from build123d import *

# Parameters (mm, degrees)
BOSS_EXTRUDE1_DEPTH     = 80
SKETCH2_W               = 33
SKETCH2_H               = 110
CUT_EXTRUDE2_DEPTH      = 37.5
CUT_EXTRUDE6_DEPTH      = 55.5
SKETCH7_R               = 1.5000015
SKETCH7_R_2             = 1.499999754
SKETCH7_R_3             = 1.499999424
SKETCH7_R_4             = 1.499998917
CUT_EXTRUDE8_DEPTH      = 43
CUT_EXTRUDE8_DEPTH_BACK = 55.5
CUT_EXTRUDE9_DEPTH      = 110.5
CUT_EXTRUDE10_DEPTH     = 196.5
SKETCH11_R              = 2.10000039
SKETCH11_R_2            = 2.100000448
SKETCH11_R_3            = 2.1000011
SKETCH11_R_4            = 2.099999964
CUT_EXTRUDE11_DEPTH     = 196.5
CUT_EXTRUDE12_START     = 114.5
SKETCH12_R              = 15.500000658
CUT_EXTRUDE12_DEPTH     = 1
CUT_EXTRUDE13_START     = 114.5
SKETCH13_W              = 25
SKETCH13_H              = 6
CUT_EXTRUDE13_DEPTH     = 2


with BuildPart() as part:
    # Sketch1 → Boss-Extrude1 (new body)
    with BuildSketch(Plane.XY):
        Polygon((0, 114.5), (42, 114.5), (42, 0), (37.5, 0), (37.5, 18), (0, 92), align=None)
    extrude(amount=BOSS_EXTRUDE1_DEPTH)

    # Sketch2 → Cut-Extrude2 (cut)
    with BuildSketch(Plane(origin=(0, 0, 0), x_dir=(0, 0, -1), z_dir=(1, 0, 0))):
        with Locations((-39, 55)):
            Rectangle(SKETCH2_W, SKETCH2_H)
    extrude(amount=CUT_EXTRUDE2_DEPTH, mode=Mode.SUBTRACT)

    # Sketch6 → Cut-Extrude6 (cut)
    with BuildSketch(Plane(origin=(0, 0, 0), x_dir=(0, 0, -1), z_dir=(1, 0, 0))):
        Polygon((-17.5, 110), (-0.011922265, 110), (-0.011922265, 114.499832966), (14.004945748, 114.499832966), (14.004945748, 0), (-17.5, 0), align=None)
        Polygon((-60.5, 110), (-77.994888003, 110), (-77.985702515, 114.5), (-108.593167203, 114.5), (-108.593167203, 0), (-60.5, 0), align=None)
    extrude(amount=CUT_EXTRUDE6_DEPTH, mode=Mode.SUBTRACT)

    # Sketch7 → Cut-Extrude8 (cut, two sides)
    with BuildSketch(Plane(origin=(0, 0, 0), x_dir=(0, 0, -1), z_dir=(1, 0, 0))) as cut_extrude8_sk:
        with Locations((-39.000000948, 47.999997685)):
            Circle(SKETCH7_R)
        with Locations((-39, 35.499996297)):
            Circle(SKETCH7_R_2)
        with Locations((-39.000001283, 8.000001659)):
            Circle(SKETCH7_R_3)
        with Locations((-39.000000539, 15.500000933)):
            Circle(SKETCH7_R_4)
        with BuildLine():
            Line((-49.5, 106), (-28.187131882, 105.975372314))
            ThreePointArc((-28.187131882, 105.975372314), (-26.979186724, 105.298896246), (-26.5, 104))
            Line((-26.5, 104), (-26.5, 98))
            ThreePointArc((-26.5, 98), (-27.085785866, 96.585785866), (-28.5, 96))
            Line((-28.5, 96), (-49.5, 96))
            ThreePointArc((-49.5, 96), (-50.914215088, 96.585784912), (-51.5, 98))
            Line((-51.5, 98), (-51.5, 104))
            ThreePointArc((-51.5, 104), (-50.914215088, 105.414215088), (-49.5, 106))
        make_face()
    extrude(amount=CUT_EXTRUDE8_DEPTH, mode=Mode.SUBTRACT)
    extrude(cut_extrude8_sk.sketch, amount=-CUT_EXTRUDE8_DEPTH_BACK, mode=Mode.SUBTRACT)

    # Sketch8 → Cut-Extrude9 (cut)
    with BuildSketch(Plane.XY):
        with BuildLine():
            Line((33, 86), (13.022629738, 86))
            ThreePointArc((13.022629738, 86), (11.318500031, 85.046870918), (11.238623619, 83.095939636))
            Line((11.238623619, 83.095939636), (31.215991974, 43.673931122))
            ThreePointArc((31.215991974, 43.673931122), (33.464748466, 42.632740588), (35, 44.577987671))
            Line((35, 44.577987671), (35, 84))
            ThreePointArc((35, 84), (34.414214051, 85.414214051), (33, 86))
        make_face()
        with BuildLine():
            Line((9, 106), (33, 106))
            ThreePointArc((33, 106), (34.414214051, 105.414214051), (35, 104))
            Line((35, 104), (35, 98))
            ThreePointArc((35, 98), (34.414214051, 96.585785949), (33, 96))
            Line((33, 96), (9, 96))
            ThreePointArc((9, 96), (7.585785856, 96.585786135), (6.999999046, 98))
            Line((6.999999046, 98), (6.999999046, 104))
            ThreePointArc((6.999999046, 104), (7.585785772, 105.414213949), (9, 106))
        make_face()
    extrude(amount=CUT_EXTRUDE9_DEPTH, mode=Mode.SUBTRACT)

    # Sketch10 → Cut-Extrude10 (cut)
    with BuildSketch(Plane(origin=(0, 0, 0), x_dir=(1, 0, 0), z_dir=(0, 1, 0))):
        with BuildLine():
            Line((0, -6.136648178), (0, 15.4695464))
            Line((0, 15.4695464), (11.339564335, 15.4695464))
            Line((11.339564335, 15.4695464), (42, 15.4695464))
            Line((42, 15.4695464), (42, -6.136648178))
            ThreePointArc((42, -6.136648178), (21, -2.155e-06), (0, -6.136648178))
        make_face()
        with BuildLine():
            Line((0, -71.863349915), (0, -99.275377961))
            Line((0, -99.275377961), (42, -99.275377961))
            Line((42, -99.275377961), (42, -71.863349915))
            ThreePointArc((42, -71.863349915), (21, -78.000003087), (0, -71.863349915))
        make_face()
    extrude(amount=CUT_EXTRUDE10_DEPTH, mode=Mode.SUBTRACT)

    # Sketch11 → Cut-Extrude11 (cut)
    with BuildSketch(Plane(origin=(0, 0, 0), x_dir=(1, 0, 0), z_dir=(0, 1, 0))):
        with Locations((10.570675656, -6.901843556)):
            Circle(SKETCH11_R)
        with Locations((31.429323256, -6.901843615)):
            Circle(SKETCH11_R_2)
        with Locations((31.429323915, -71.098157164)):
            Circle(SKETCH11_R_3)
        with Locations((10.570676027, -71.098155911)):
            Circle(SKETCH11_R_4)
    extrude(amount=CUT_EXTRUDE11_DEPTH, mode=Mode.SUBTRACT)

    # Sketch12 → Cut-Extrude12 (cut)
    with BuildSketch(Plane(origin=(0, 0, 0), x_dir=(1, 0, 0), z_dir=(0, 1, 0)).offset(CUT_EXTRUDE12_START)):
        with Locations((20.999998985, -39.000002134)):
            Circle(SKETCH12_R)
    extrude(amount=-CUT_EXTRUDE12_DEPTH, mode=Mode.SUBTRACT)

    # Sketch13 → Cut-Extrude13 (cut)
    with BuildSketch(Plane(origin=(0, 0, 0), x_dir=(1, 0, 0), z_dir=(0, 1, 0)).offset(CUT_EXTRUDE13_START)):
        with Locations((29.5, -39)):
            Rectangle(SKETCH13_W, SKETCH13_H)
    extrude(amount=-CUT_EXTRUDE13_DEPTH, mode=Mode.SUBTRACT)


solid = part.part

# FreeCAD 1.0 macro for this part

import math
import FreeCAD as App
import Part
import Sketcher
Q = App.Units.Quantity

doc = App.newDocument("Part")
body = doc.addObject("PartDesign::Body", "Body")

sketch1 = body.newObject("Sketcher::SketchObject", "Sketch")
sketch1.AttachmentSupport = (doc.getObject("XY_Plane"), [""])
sketch1.MapMode = "FlatFace"
sketch1.addGeometry([
    Part.LineSegment(App.Vector(42, 114.5, 0), App.Vector(0, 114.5, 0)),
    Part.LineSegment(App.Vector(0, 114.5, 0), App.Vector(0, 92, 0)),
    Part.LineSegment(App.Vector(0, 92, 0), App.Vector(37.5, 18, 0)),
    Part.LineSegment(App.Vector(37.5, 18, 0), App.Vector(37.5, 0, 0)),
    Part.LineSegment(App.Vector(37.5, 0, 0), App.Vector(42, 0, 0)),
    Part.LineSegment(App.Vector(42, 0, 0), App.Vector(42, 114.5, 0)),
], False)
sketch1.addConstraint([
    Sketcher.Constraint("Coincident", 0, 2, 1, 1),
    Sketcher.Constraint("Coincident", 1, 2, 2, 1),
    Sketcher.Constraint("Coincident", 2, 2, 3, 1),
    Sketcher.Constraint("Coincident", 3, 2, 4, 1),
    Sketcher.Constraint("Coincident", 4, 2, 5, 1),
    Sketcher.Constraint("Coincident", 5, 2, 0, 1),
    Sketcher.Constraint("Horizontal", 0),
    Sketcher.Constraint("Vertical", 1),
    Sketcher.Constraint("Vertical", 3),
    Sketcher.Constraint("Horizontal", 4),
    Sketcher.Constraint("Vertical", 5),
    Sketcher.Constraint("PointOnObject", 0, 2, -2),
    Sketcher.Constraint("PointOnObject", 3, 2, -1),
    Sketcher.Constraint("DistanceX", 0, 2, 0, 1, Q("42 mm")),
    Sketcher.Constraint("DistanceY", 3, 2, 3, 1, Q("18 mm")),
    Sketcher.Constraint("DistanceX", 4, 1, 4, 2, Q("4.5 mm")),
    Sketcher.Constraint("DistanceY", 1, 2, 1, 1, Q("22.5 mm")),
    Sketcher.Constraint("DistanceY", 5, 1, 5, 2, Q("114.5 mm")),
])
pad1 = body.newObject("PartDesign::Pad", "Pad")
pad1.Profile = sketch1
pad1.Length = 80

sketch2 = body.newObject("Sketcher::SketchObject", "Sketch001")
sketch2.AttachmentSupport = (doc.getObject("YZ_Plane"), [""])
sketch2.MapMode = "FlatFace"
sketch2.addGeometry([
    Part.LineSegment(App.Vector(110, 56, 0), App.Vector(0, 56, 0)),
    Part.LineSegment(App.Vector(0, 56, 0), App.Vector(0, 22, 0)),
    Part.LineSegment(App.Vector(0, 22, 0), App.Vector(110, 22, 0)),
    Part.LineSegment(App.Vector(110, 22, 0), App.Vector(110, 56, 0)),
], False)
sketch2.addConstraint([
    Sketcher.Constraint("Coincident", 0, 2, 1, 1),
    Sketcher.Constraint("Coincident", 1, 2, 2, 1),
    Sketcher.Constraint("Coincident", 2, 2, 3, 1),
    Sketcher.Constraint("Coincident", 3, 2, 0, 1),
    Sketcher.Constraint("Horizontal", 0),
    Sketcher.Constraint("Vertical", 1),
    Sketcher.Constraint("Horizontal", 2),
    Sketcher.Constraint("Vertical", 3),
    Sketcher.Constraint("PointOnObject", 0, 2, -2),
    Sketcher.Constraint("DistanceX", 0, 2, 0, 1, Q("110 mm")),
    Sketcher.Constraint("DistanceY", 1, 2, 1, 1, Q("33 mm")),
    Sketcher.Constraint("DistanceY", -1, 1, 0, 2, Q("55.5 mm")),
])
pocket1 = body.newObject("PartDesign::Pocket", "Pocket")
pocket1.Profile = sketch2
pocket1.Length = 37.5
pocket1.Reversed = True

sketch3 = body.newObject("Sketcher::SketchObject", "Sketch002")
sketch3.AttachmentSupport = (doc.getObject("YZ_Plane"), [""])
sketch3.MapMode = "FlatFace"
sketch3.addGeometry([
    Part.LineSegment(App.Vector(110, 0, 0), App.Vector(110, 17.5, 0)),
    Part.LineSegment(App.Vector(110, 17.5, 0), App.Vector(0, 17.5, 0)),
    Part.LineSegment(App.Vector(0, 17.5, 0), App.Vector(0, -14, 0)),
    Part.LineSegment(App.Vector(0, -14, 0), App.Vector(114.5, -14, 0)),
    Part.LineSegment(App.Vector(114.5, -14, 0), App.Vector(114.5, 0, 0)),
    Part.LineSegment(App.Vector(114.5, 0, 0), App.Vector(110, 0, 0)),
    Part.LineSegment(App.Vector(110, 60.5, 0), App.Vector(110, 78, 0)),
    Part.LineSegment(App.Vector(110, 78, 0), App.Vector(114.5, 78, 0)),
    Part.LineSegment(App.Vector(114.5, 78, 0), App.Vector(114.5, 108.6, 0)),
    Part.LineSegment(App.Vector(114.5, 108.6, 0), App.Vector(0, 108.6, 0)),
    Part.LineSegment(App.Vector(0, 108.6, 0), App.Vector(0, 60.5, 0)),
    Part.LineSegment(App.Vector(0, 60.5, 0), App.Vector(110, 60.5, 0)),
], False)
sketch3.addConstraint([
    Sketcher.Constraint("Coincident", 0, 2, 1, 1),
    Sketcher.Constraint("Coincident", 1, 2, 2, 1),
    Sketcher.Constraint("Coincident", 2, 2, 3, 1),
    Sketcher.Constraint("Coincident", 3, 2, 4, 1),
    Sketcher.Constraint("Coincident", 4, 2, 5, 1),
    Sketcher.Constraint("Coincident", 5, 2, 0, 1),
    Sketcher.Constraint("Coincident", 6, 2, 7, 1),
    Sketcher.Constraint("Coincident", 7, 2, 8, 1),
    Sketcher.Constraint("Coincident", 8, 2, 9, 1),
    Sketcher.Constraint("Coincident", 9, 2, 10, 1),
    Sketcher.Constraint("Coincident", 10, 2, 11, 1),
    Sketcher.Constraint("Coincident", 11, 2, 6, 1),
    Sketcher.Constraint("Vertical", 0),
    Sketcher.Constraint("Horizontal", 1),
    Sketcher.Constraint("Vertical", 2),
    Sketcher.Constraint("Horizontal", 3),
    Sketcher.Constraint("Vertical", 4),
    Sketcher.Constraint("Horizontal", 5),
    Sketcher.Constraint("Vertical", 6),
    Sketcher.Constraint("Vertical", 8),
    Sketcher.Constraint("Horizontal", 9),
    Sketcher.Constraint("Vertical", 10),
    Sketcher.Constraint("Horizontal", 11),
    Sketcher.Constraint("PointOnObject", 1, 2, -2),
    Sketcher.Constraint("PointOnObject", 9, 2, -2),
    Sketcher.Constraint("Vertical", 5, 2, 6, 2),
    Sketcher.Constraint("DistanceX", 1, 2, 1, 1, Q("110 mm")),
    Sketcher.Constraint("DistanceX", 9, 2, 9, 1, Q("114.5 mm")),
    Sketcher.Constraint("DistanceY", 1, 2, 10, 2, Q("43 mm")),
    Sketcher.Constraint("DistanceY", -1, 1, 0, 2, Q("17.5 mm")),
    Sketcher.Constraint("DistanceY", 4, 1, 4, 2, Q("14.016868 mm")),
    Sketcher.Constraint("DistanceY", 6, 1, 6, 2, Q("17.494888 mm")),
    Sketcher.Constraint("DistanceX", 3, 1, 3, 2, Q("114.499833 mm")),
    Sketcher.Constraint("DistanceY", 0, 1, 0, 2, Q("17.488078 mm")),
    Sketcher.Constraint("DistanceY", 8, 1, 8, 2, Q("30.607465 mm")),
    Sketcher.Constraint("DistanceY", 10, 2, 10, 1, Q("48.093167 mm")),
])
pocket2 = body.newObject("PartDesign::Pocket", "Pocket001")
pocket2.Profile = sketch3
pocket2.Length = 55.5
pocket2.Reversed = True

sketch4 = body.newObject("Sketcher::SketchObject", "Sketch003")
sketch4.AttachmentSupport = (doc.getObject("YZ_Plane"), [""])
sketch4.MapMode = "FlatFace"
sketch4.addGeometry([
    Part.Circle(App.Vector(48, 39, 0), App.Vector(0, 0, 1), 1.5),
    Part.Circle(App.Vector(35.5, 39, 0), App.Vector(0, 0, 1), 1.5),
    Part.Circle(App.Vector(8, 39, 0), App.Vector(0, 0, 1), 1.5),
    Part.Circle(App.Vector(15.5, 39, 0), App.Vector(0, 0, 1), 1.5),
    Part.LineSegment(App.Vector(106, 28.2, 0), App.Vector(106, 49.5, 0)),
    Part.ArcOfCircle(Part.Circle(App.Vector(104, 49.5, 0), App.Vector(0, 0, 1), 2), math.radians(0), math.radians(90)),
    Part.LineSegment(App.Vector(104, 51.5, 0), App.Vector(98, 51.5, 0)),
    Part.ArcOfCircle(Part.Circle(App.Vector(98, 49.5, 0), App.Vector(0, 0, 1), 2), math.radians(90), math.radians(180)),
    Part.LineSegment(App.Vector(96, 49.5, 0), App.Vector(96, 28.5, 0)),
    Part.ArcOfCircle(Part.Circle(App.Vector(98, 28.5, 0), App.Vector(0, 0, 1), 2), math.radians(180), math.radians(270)),
    Part.LineSegment(App.Vector(98, 26.5, 0), App.Vector(104, 26.5, 0)),
    Part.ArcOfCircle(Part.Circle(App.Vector(104, 28.5, 0), App.Vector(0, 0, 1), 2), math.radians(-90), math.radians(-9)),
], False)
sketch4.addConstraint([
    Sketcher.Constraint("Coincident", 4, 2, 5, 1),
    Sketcher.Constraint("Coincident", 5, 2, 6, 1),
    Sketcher.Constraint("Coincident", 6, 2, 7, 1),
    Sketcher.Constraint("Coincident", 7, 2, 8, 1),
    Sketcher.Constraint("Tangent", 8, 2, 9, 1),
    Sketcher.Constraint("Tangent", 9, 2, 10, 1),
    Sketcher.Constraint("Coincident", 10, 2, 11, 1),
    Sketcher.Constraint("Coincident", 11, 2, 4, 1),
    Sketcher.Constraint("Horizontal", 6),
    Sketcher.Constraint("Vertical", 8),
    Sketcher.Constraint("Horizontal", 10),
    Sketcher.Constraint("Equal", 0, 1),
    Sketcher.Constraint("Equal", 1, 2),
    Sketcher.Constraint("Equal", 2, 3),
    Sketcher.Constraint("Equal", 5, 7),
    Sketcher.Constraint("Horizontal", 0, 3, 1, 3),
    Sketcher.Constraint("Horizontal", 1, 3, 2, 3),
    Sketcher.Constraint("Horizontal", 2, 3, 3, 3),
    Sketcher.Constraint("Horizontal", 4, 2, 7, 2),
    Sketcher.Constraint("Vertical", 5, 3, 11, 3),
    Sketcher.Constraint("Vertical", 9, 3, 6, 2),
    Sketcher.Constraint("Vertical", 5, 2, 10, 2),
    Sketcher.Constraint("Diameter", 1, Q("3 mm")),
    Sketcher.Constraint("Radius", 9, Q("1.999998 mm")),
    Sketcher.Constraint("DistanceX", 6, 2, 6, 1, Q("6 mm")),
    Sketcher.Constraint("DistanceY", 8, 2, 8, 1, Q("21 mm")),
    Sketcher.Constraint("DistanceY", -1, 1, 0, 3, Q("39.000001 mm")),
    Sketcher.Constraint("DistanceX", -1, 1, 2, 3, Q("8.000002 mm")),
    Sketcher.Constraint("DistanceX", -1, 1, 9, 3, Q("97.999998 mm")),
    Sketcher.Constraint("DistanceX", -1, 1, 4, 2, Q("106 mm")),
    Sketcher.Constraint("DistanceX", 0, 3, 9, 3, Q("50 mm")),
    Sketcher.Constraint("DistanceY", 4, 2, 5, 2, Q("2 mm")),
    Sketcher.Constraint("DistanceX", -1, 1, 3, 3, Q("15.500001 mm")),
    Sketcher.Constraint("DistanceY", -1, 1, 9, 3, Q("28.499998 mm")),
    Sketcher.Constraint("DistanceX", 1, 3, 0, 3, Q("12.500001 mm")),
    Sketcher.Constraint("DistanceX", 1, 3, 7, 3, Q("62.499998 mm")),
    Sketcher.Constraint("Radius", 11, Q("1.999987 mm")),
    Sketcher.Constraint("DistanceY", -1, 1, 11, 2, Q("28.187132 mm")),
])
pocket3 = body.newObject("PartDesign::Pocket", "Pocket002")
pocket3.Profile = sketch4
pocket3.Type = "ThroughAll"
pocket3.Midplane = True

sketch5 = body.newObject("Sketcher::SketchObject", "Sketch004")
sketch5.AttachmentSupport = (doc.getObject("XY_Plane"), [""])
sketch5.MapMode = "FlatFace"
sketch5.addGeometry([
    Part.LineSegment(App.Vector(33, 86, 0), App.Vector(13.02263, 86, 0)),
    Part.ArcOfCircle(Part.Circle(App.Vector(13.022632, 83.999998, 0), App.Vector(0, 0, 1), 2.000002), math.radians(90.000054), math.radians(206.873935)),
    Part.LineSegment(App.Vector(11.238624, 83.09594, 0), App.Vector(31.215992, 43.673931, 0)),
    Part.ArcOfCircle(Part.Circle(App.Vector(32.999998, 44.577995, 0), App.Vector(0, 0, 1), 2.000002), math.radians(-153.125899), math.radians(-0.000216)),
    Part.LineSegment(App.Vector(35, 44.577988, 0), App.Vector(35, 84, 0)),
    Part.ArcOfCircle(Part.Circle(App.Vector(33.000002, 84.000002, 0), App.Vector(0, 0, 1), 1.999998), math.radians(-0.000048), math.radians(90.000048)),
    Part.LineSegment(App.Vector(33, 106, 0), App.Vector(9, 106, 0)),
    Part.ArcOfCircle(Part.Circle(App.Vector(8.999999, 104, 0), App.Vector(0, 0, 1), 2), math.radians(89.999968), math.radians(180.000005)),
    Part.LineSegment(App.Vector(6.999999, 104, 0), App.Vector(6.999999, 98, 0)),
    Part.ArcOfCircle(Part.Circle(App.Vector(8.999999, 98, 0), App.Vector(0, 0, 1), 2), math.radians(-179.999997), math.radians(-89.999976)),
    Part.LineSegment(App.Vector(9, 96, 0), App.Vector(33, 96, 0)),
    Part.ArcOfCircle(Part.Circle(App.Vector(33.000002, 97.999998, 0), App.Vector(0, 0, 1), 1.999998), math.radians(-90.000048), math.radians(0.000048)),
    Part.LineSegment(App.Vector(35, 98, 0), App.Vector(35, 104, 0)),
    Part.ArcOfCircle(Part.Circle(App.Vector(33.000002, 104.000002, 0), App.Vector(0, 0, 1), 1.999998), math.radians(-0.000048), math.radians(90.000048)),
], False)
sketch5.addConstraint([
    Sketcher.Constraint("Coincident", 0, 2, 1, 1),
    Sketcher.Constraint("Coincident", 1, 2, 2, 1),
    Sketcher.Constraint("Coincident", 2, 2, 3, 1),
    Sketcher.Constraint("Coincident", 3, 2, 4, 1),
    Sketcher.Constraint("Coincident", 4, 2, 5, 1),
    Sketcher.Constraint("Coincident", 5, 2, 0, 1),
    Sketcher.Constraint("Coincident", 6, 2, 7, 1),
    Sketcher.Constraint("Coincident", 7, 2, 8, 1),
    Sketcher.Constraint("Coincident", 8, 2, 9, 1),
    Sketcher.Constraint("Coincident", 9, 2, 10, 1),
    Sketcher.Constraint("Coincident", 10, 2, 11, 1),
    Sketcher.Constraint("Coincident", 11, 2, 12, 1),
    Sketcher.Constraint("Coincident", 12, 2, 13, 1),
    Sketcher.Constraint("Coincident", 13, 2, 6, 1),
    Sketcher.Constraint("Horizontal", 0),
    Sketcher.Constraint("Vertical", 4),
    Sketcher.Constraint("Horizontal", 6),
    Sketcher.Constraint("Vertical", 8),
    Sketcher.Constraint("Horizontal", 10),
    Sketcher.Constraint("Vertical", 12),
    Sketcher.Constraint("Radius", 1, Q("2.000002 mm")),
    Sketcher.Constraint("Radius", 5, Q("1.999998 mm")),
    Sketcher.Constraint("Radius", 7, Q("2 mm")),
    Sketcher.Constraint("Radius", 9, Q("2 mm")),
    Sketcher.Constraint("Radius", 11, Q("1.999998 mm")),
    Sketcher.Constraint("Radius", 13, Q("1.999998 mm")),
    Sketcher.Constraint("DistanceX", 6, 2, 6, 1, Q("24 mm")),
    Sketcher.Constraint("DistanceX", 10, 1, 10, 2, Q("24 mm")),
    Sketcher.Constraint("DistanceY", 8, 2, 8, 1, Q("6 mm")),
    Sketcher.Constraint("DistanceY", 12, 1, 12, 2, Q("6 mm")),
    Sketcher.Constraint("DistanceY", -1, 1, 1, 3, Q("83.999998 mm")),
    Sketcher.Constraint("DistanceX", -1, 1, 5, 3, Q("33.000002 mm")),
    Sketcher.Constraint("DistanceX", -1, 1, 7, 3, Q("8.999999 mm")),
    Sketcher.Constraint("DistanceY", -1, 1, 7, 3, Q("104 mm")),
    Sketcher.Constraint("DistanceY", -1, 1, 9, 3, Q("98 mm")),
    Sketcher.Constraint("DistanceX", -1, 1, 11, 3, Q("33.000002 mm")),
    Sketcher.Constraint("DistanceY", -1, 1, 4, 2, Q("84 mm")),
    Sketcher.Constraint("DistanceX", -1, 1, 5, 2, Q("33 mm")),
    Sketcher.Constraint("DistanceX", -1, 1, 6, 2, Q("9 mm")),
    Sketcher.Constraint("DistanceY", -1, 1, 7, 2, Q("104 mm")),
    Sketcher.Constraint("DistanceX", -1, 1, 9, 2, Q("9 mm")),
    Sketcher.Constraint("DistanceY", -1, 1, 11, 2, Q("98 mm")),
    Sketcher.Constraint("DistanceX", 7, 3, 3, 3, Q("23.999999 mm")),
    Sketcher.Constraint("DistanceX", 0, 2, 0, 1, Q("19.97737 mm")),
    Sketcher.Constraint("Distance", 2, Q("44.194909 mm")),
    Sketcher.Constraint("DistanceY", 4, 1, 4, 2, Q("39.422012 mm")),
    Sketcher.Constraint("DistanceX", -1, 1, 1, 3, Q("13.022632 mm")),
    Sketcher.Constraint("DistanceY", -1, 1, 1, 2, Q("83.09594 mm")),
    Sketcher.Constraint("DistanceX", -1, 1, 2, 2, Q("31.215992 mm")),
])
pocket4 = body.newObject("PartDesign::Pocket", "Pocket003")
pocket4.Profile = sketch5
pocket4.Length = 110.5
pocket4.Reversed = True

sketch6 = body.newObject("Sketcher::SketchObject", "Sketch005")
sketch6.AttachmentSupport = (doc.getObject("XZ_Plane"), [""])
sketch6.MapMode = "FlatFace"
sketch6.addGeometry([
    Part.LineSegment(App.Vector(0, -15, 0), App.Vector(0, 6, 0)),
    Part.ArcOfCircle(Part.Circle(App.Vector(21, 39, 0), App.Vector(0, 0, 1), 39), math.radians(-123), math.radians(-57)),
    Part.LineSegment(App.Vector(42, 6, 0), App.Vector(42, -15, 0)),
    Part.LineSegment(App.Vector(42, -15, 0), App.Vector(0, -15, 0)),
    Part.LineSegment(App.Vector(0, 72, 0), App.Vector(0, 99, 0)),
    Part.LineSegment(App.Vector(0, 99, 0), App.Vector(42, 99, 0)),
    Part.LineSegment(App.Vector(42, 99, 0), App.Vector(42, 72, 0)),
    Part.ArcOfCircle(Part.Circle(App.Vector(21, 39, 0), App.Vector(0, 0, 1), 39), math.radians(57), math.radians(123)),
], False)
sketch6.addConstraint([
    Sketcher.Constraint("Coincident", 0, 2, 1, 1),
    Sketcher.Constraint("Coincident", 1, 2, 2, 1),
    Sketcher.Constraint("Coincident", 2, 2, 3, 1),
    Sketcher.Constraint("Coincident", 3, 2, 0, 1),
    Sketcher.Constraint("Coincident", 4, 2, 5, 1),
    Sketcher.Constraint("Coincident", 5, 2, 6, 1),
    Sketcher.Constraint("Coincident", 6, 2, 7, 1),
    Sketcher.Constraint("Coincident", 7, 2, 4, 1),
    Sketcher.Constraint("Vertical", 0),
    Sketcher.Constraint("Vertical", 2),
    Sketcher.Constraint("Horizontal", 3),
    Sketcher.Constraint("Vertical", 4),
    Sketcher.Constraint("Horizontal", 5),
    Sketcher.Constraint("Vertical", 6),
    Sketcher.Constraint("PointOnObject", 0, 2, -2),
    Sketcher.Constraint("PointOnObject", 4, 2, -2),
    Sketcher.Constraint("Horizontal", 0, 2, 1, 2),
    Sketcher.Constraint("Horizontal", 6, 2, 7, 2),
    Sketcher.Constraint("Vertical", 1, 3, 7, 3),
    Sketcher.Constraint("DistanceX", 3, 2, 3, 1, Q("42 mm")),
    Sketcher.Constraint("Radius", 1, Q("39.000003 mm")),
    Sketcher.Constraint("Radius", 7, Q("38.999965 mm")),
    Sketcher.Constraint("DistanceY", 4, 1, 4, 2, Q("27.412028 mm")),
    Sketcher.Constraint("DistanceY", 1, 2, 6, 2, Q("65.726702 mm")),
    Sketcher.Constraint("DistanceY", 0, 1, 0, 2, Q("21.606195 mm")),
    Sketcher.Constraint("DistanceY", -1, 1, 7, 3, Q("39.000039 mm")),
])
pocket5 = body.newObject("PartDesign::Pocket", "Pocket004")
pocket5.Profile = sketch6
pocket5.Length = 196.5

sketch7 = body.newObject("Sketcher::SketchObject", "Sketch006")
sketch7.AttachmentSupport = (doc.getObject("XZ_Plane"), [""])
sketch7.MapMode = "FlatFace"
sketch7.addGeometry([
    Part.Circle(App.Vector(10.6, 6.9, 0), App.Vector(0, 0, 1), 2.1),
    Part.Circle(App.Vector(31.4, 6.9, 0), App.Vector(0, 0, 1), 2.1),
    Part.Circle(App.Vector(31.4, 71.1, 0), App.Vector(0, 0, 1), 2.1),
    Part.Circle(App.Vector(10.6, 71.1, 0), App.Vector(0, 0, 1), 2.1),
], False)
sketch7.addConstraint([
    Sketcher.Constraint("Equal", 0, 1),
    Sketcher.Constraint("Equal", 1, 2),
    Sketcher.Constraint("Equal", 2, 3),
    Sketcher.Constraint("Horizontal", 0, 3, 1, 3),
    Sketcher.Constraint("Horizontal", 2, 3, 3, 3),
    Sketcher.Constraint("Vertical", 1, 3, 2, 3),
    Sketcher.Constraint("Vertical", 0, 3, 3, 3),
    Sketcher.Constraint("Diameter", 0, Q("4.200001 mm")),
    Sketcher.Constraint("DistanceX", 0, 3, 2, 3, Q("20.858648 mm")),
    Sketcher.Constraint("DistanceX", -1, 1, 0, 3, Q("10.570676 mm")),
    Sketcher.Constraint("DistanceY", -1, 1, 0, 3, Q("6.901844 mm")),
    Sketcher.Constraint("DistanceY", -1, 1, 2, 3, Q("71.098157 mm")),
])
pocket6 = body.newObject("PartDesign::Pocket", "Pocket005")
pocket6.Profile = sketch7
pocket6.Length = 196.5

sketch8 = body.newObject("Sketcher::SketchObject", "Sketch007")
sketch8.AttachmentSupport = (doc.getObject("XZ_Plane"), [""])
sketch8.MapMode = "FlatFace"
sketch8.AttachmentOffset = App.Placement(App.Vector(0, 0, -114.5), App.Rotation())
sketch8.addGeometry(Part.Circle(App.Vector(21, 39, 0), App.Vector(0, 0, 1), 16), False)
sketch8.addConstraint([
    Sketcher.Constraint("Diameter", 0, Q("31.000001 mm")),
    Sketcher.Constraint("DistanceX", -1, 1, 0, 3, Q("20.999999 mm")),
    Sketcher.Constraint("DistanceY", -1, 1, 0, 3, Q("39.000002 mm")),
])
pocket7 = body.newObject("PartDesign::Pocket", "Pocket006")
pocket7.Profile = sketch8
pocket7.Length = 1
pocket7.Reversed = True

sketch9 = body.newObject("Sketcher::SketchObject", "Sketch008")
sketch9.AttachmentSupport = (doc.getObject("XZ_Plane"), [""])
sketch9.MapMode = "FlatFace"
sketch9.AttachmentOffset = App.Placement(App.Vector(0, 0, -114.5), App.Rotation())
sketch9.addGeometry([
    Part.LineSegment(App.Vector(17, 36, 0), App.Vector(17, 42, 0)),
    Part.LineSegment(App.Vector(17, 42, 0), App.Vector(42, 42, 0)),
    Part.LineSegment(App.Vector(42, 42, 0), App.Vector(42, 36, 0)),
    Part.LineSegment(App.Vector(42, 36, 0), App.Vector(17, 36, 0)),
], False)
sketch9.addConstraint([
    Sketcher.Constraint("Coincident", 0, 2, 1, 1),
    Sketcher.Constraint("Coincident", 1, 2, 2, 1),
    Sketcher.Constraint("Coincident", 2, 2, 3, 1),
    Sketcher.Constraint("Coincident", 3, 2, 0, 1),
    Sketcher.Constraint("Vertical", 0),
    Sketcher.Constraint("Horizontal", 1),
    Sketcher.Constraint("Vertical", 2),
    Sketcher.Constraint("Horizontal", 3),
    Sketcher.Constraint("DistanceX", 1, 1, 1, 2, Q("25 mm")),
    Sketcher.Constraint("DistanceY", 0, 1, 0, 2, Q("6 mm")),
    Sketcher.Constraint("DistanceX", -1, 1, 0, 2, Q("17 mm")),
    Sketcher.Constraint("DistanceY", -1, 1, 0, 2, Q("42 mm")),
])
pocket8 = body.newObject("PartDesign::Pocket", "Pocket007")
pocket8.Profile = sketch9
pocket8.Length = 2
pocket8.Reversed = True

doc.recompute()
